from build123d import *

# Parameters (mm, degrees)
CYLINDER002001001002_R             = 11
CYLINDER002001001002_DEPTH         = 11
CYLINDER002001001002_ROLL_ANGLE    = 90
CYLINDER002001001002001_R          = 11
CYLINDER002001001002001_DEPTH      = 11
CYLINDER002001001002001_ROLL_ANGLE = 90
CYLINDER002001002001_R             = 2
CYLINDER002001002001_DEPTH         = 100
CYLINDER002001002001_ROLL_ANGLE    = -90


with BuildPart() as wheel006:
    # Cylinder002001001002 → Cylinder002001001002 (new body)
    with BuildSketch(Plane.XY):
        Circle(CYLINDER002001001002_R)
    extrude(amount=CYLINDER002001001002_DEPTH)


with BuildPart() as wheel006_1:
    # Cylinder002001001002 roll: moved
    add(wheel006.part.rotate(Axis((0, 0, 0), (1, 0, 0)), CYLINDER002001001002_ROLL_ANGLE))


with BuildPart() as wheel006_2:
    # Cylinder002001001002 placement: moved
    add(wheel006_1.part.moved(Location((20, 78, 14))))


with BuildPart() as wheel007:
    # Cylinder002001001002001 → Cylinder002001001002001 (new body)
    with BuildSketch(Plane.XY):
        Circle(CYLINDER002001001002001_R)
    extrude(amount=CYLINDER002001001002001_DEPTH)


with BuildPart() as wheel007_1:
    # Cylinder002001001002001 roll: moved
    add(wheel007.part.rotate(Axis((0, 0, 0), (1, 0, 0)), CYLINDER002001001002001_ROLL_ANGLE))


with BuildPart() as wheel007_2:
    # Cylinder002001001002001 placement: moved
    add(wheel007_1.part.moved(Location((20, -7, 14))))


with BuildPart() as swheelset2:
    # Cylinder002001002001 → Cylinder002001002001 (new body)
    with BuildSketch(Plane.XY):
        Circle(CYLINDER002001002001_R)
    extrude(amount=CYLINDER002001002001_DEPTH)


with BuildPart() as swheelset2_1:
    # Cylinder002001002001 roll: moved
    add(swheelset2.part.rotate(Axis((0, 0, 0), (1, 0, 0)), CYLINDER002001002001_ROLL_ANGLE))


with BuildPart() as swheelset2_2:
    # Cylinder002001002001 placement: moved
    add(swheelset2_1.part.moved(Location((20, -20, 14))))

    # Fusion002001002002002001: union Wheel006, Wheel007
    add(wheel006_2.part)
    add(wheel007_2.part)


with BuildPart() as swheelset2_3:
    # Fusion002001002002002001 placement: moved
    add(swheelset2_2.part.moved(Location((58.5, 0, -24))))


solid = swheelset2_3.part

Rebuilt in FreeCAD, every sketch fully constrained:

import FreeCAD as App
import Part
import Sketcher
Q = App.Units.Quantity

doc = App.newDocument("Part")
body = doc.addObject("PartDesign::Body", "Body")

# Sketch on XY plane
sketch1 = body.newObject("Sketcher::SketchObject", "Sketch")
sketch1.AttachmentSupport = (doc.getObject("XY_Plane"), [""])
sketch1.MapMode = "FlatFace"
sketch1.addGeometry(Part.Circle(App.Vector(0, 0, 0), App.Vector(0, 0, 1), 11), False)
sketch1.addConstraint([
    Sketcher.Constraint("Coincident", 0, 3, -1, 1),
    Sketcher.Constraint("Diameter", 0, Q("22 mm")),
])
pad1 = body.newObject("PartDesign::Pad", "Pad")
pad1.Profile = sketch1
pad1.Length = 11
body2 = doc.addObject("PartDesign::Body", "Body001")
doc.recompute()

body.Placement = App.Placement(App.Vector(0, 0, 0), App.Rotation(App.Vector(1, 0, 0), 90))
boolean = body2.newObject("PartDesign::Boolean", "Boolean")
boolean.Type = "Fuse"
boolean.addObjects([body])
body3 = doc.addObject("PartDesign::Body", "Body002")
doc.recompute()

body2.Placement = App.Placement(App.Vector(20, 78, 14), App.Rotation(App.Vector(0, 0, 1), 0))
boolean2 = body3.newObject("PartDesign::Boolean", "Boolean001")
boolean2.Type = "Fuse"
boolean2.addObjects([body2])
body4 = doc.addObject("PartDesign::Body", "Body003")

# Sketch on XY plane
sketch2 = body4.newObject("Sketcher::SketchObject", "Sketch001")
sketch2.AttachmentSupport = (doc.getObject("XY_Plane003"), [""])
sketch2.MapMode = "FlatFace"
sketch2.addGeometry(Part.Circle(App.Vector(0, 0, 0), App.Vector(0, 0, 1), 11), False)
sketch2.addConstraint([
    Sketcher.Constraint("Coincident", 0, 3, -1, 1),
    Sketcher.Constraint("Diameter", 0, Q("22 mm")),
])
pad2 = body4.newObject("PartDesign::Pad", "Pad001")
pad2.Profile = sketch2
pad2.Length = 11
body5 = doc.addObject("PartDesign::Body", "Body004")
doc.recompute()

body4.Placement = App.Placement(App.Vector(0, 0, 0), App.Rotation(App.Vector(1, 0, 0), 90))
boolean3 = body5.newObject("PartDesign::Boolean", "Boolean002")
boolean3.Type = "Fuse"
boolean3.addObjects([body4])
body6 = doc.addObject("PartDesign::Body", "Body005")
doc.recompute()

body5.Placement = App.Placement(App.Vector(20, -7, 14), App.Rotation(App.Vector(0, 0, 1), 0))
boolean4 = body6.newObject("PartDesign::Boolean", "Boolean003")
boolean4.Type = "Fuse"
boolean4.addObjects([body5])
body7 = doc.addObject("PartDesign::Body", "Body006")

# Sketch on XY plane
sketch3 = body7.newObject("Sketcher::SketchObject", "Sketch002")
sketch3.AttachmentSupport = (doc.getObject("XY_Plane006"), [""])
sketch3.MapMode = "FlatFace"
sketch3.addGeometry(Part.Circle(App.Vector(0, 0, 0), App.Vector(0, 0, 1), 2), False)
sketch3.addConstraint([
    Sketcher.Constraint("Coincident", 0, 3, -1, 1),
    Sketcher.Constraint("Diameter", 0, Q("4 mm")),
])
pad3 = body7.newObject("PartDesign::Pad", "Pad002")
pad3.Profile = sketch3
pad3.Length = 100
body8 = doc.addObject("PartDesign::Body", "Body007")
doc.recompute()

body7.Placement = App.Placement(App.Vector(0, 0, 0), App.Rotation(App.Vector(1, 0, 0), 270))
boolean5 = body8.newObject("PartDesign::Boolean", "Boolean004")
boolean5.Type = "Fuse"
boolean5.addObjects([body7])
body9 = doc.addObject("PartDesign::Body", "Body008")
doc.recompute()

body8.Placement = App.Placement(App.Vector(20, -20, 14), App.Rotation(App.Vector(0, 0, 1), 0))
boolean6 = body9.newObject("PartDesign::Boolean", "Boolean005")
boolean6.Type = "Fuse"
boolean6.addObjects([body8])
doc.recompute()

boolean7 = body9.newObject("PartDesign::Boolean", "Boolean006")
boolean7.Type = "Fuse"
boolean7.addObjects([body3])
doc.recompute()

boolean8 = body9.newObject("PartDesign::Boolean", "Boolean007")
boolean8.Type = "Fuse"
boolean8.addObjects([body6])
body10 = doc.addObject("PartDesign::Body", "Body009")
doc.recompute()

body9.Placement = App.Placement(App.Vector(58.5, 0, -24), App.Rotation(App.Vector(0, 0, 1), 0))
boolean9 = body10.newObject("PartDesign::Boolean", "Boolean008")
boolean9.Type = "Fuse"
boolean9.addObjects([body9])

doc.recompute()
